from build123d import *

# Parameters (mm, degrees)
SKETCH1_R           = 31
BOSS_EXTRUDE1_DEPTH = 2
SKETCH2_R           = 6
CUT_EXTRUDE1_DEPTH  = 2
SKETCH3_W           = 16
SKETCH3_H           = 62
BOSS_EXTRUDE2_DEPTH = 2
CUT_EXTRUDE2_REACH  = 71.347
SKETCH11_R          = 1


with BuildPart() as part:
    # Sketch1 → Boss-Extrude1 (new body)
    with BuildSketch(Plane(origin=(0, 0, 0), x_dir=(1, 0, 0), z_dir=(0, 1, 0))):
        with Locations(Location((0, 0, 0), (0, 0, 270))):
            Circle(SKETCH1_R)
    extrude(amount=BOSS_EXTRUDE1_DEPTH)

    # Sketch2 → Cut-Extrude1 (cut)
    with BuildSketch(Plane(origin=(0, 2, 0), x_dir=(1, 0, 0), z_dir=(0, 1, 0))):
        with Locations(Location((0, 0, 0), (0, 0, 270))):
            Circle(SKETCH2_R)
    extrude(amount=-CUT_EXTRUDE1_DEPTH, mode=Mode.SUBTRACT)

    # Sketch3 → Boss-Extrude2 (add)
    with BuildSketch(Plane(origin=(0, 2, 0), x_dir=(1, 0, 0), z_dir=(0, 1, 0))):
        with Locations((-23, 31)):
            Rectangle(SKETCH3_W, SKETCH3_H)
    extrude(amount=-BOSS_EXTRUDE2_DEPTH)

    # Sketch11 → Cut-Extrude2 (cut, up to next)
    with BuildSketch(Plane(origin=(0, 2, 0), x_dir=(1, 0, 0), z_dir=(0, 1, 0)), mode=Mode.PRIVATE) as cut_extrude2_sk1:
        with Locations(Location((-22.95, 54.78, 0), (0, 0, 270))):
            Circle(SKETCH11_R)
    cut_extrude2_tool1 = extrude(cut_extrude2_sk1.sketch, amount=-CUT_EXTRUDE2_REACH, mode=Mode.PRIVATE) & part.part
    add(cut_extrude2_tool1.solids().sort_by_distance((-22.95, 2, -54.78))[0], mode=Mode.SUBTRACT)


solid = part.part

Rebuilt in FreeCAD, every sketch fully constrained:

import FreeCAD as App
import Part
import Sketcher

V = App.Vector

doc = App.newDocument("Part")
body = doc.addObject("PartDesign::Body", "Body")

sketch1 = body.newObject("Sketcher::SketchObject", "Sketch")
sketch1.AttachmentSupport = (doc.getObject("XZ_Plane"), [""])
sketch1.MapMode = "FlatFace"
sketch1.addGeometry(Part.Circle(V(0, 0, 0), V(0, 0, 1), 31), False)
sketch1.addConstraint(Sketcher.Constraint("Coincident", 0, 3, -1, 1))
sketch1.addConstraint(Sketcher.Constraint("Diameter", 0, 62.0))
pad1 = body.newObject("PartDesign::Pad", "Pad")
pad1.Profile = sketch1
pad1.Length = 2
pad1.Reversed = True

sketch2 = body.newObject("Sketcher::SketchObject", "Sketch001")
sketch2.AttachmentSupport = (doc.getObject("XZ_Plane"), [""])
sketch2.MapMode = "FlatFace"
sketch2.AttachmentOffset = App.Placement(V(0, 0, -2), App.Rotation())
sketch2.addGeometry(Part.Circle(V(0, 0, 0), V(0, 0, 1), 6), False)
sketch2.addConstraint(Sketcher.Constraint("Coincident", 0, 3, -1, 1))
sketch2.addConstraint(Sketcher.Constraint("Diameter", 0, 12.0))
pocket1 = body.newObject("PartDesign::Pocket", "Pocket")
pocket1.Profile = sketch2
pocket1.Length = 2
pocket1.Reversed = True

sketch3 = body.newObject("Sketcher::SketchObject", "Sketch002")
sketch3.AttachmentSupport = (doc.getObject("XZ_Plane"), [""])
sketch3.MapMode = "FlatFace"
sketch3.AttachmentOffset = App.Placement(V(0, 0, -2), App.Rotation())
sketch3.addGeometry(Part.LineSegment(V(-31, -62, 0), V(-31, 0, 0)), False)
sketch3.addGeometry(Part.LineSegment(V(-31, 0, 0), V(-15, 0, 0)), False)
sketch3.addGeometry(Part.LineSegment(V(-15, 0, 0), V(-15, -62, 0)), False)
sketch3.addGeometry(Part.LineSegment(V(-15, -62, 0), V(-31, -62, 0)), False)
sketch3.addConstraint(Sketcher.Constraint("Coincident", 0, 2, 1, 1))
sketch3.addConstraint(Sketcher.Constraint("Coincident", 1, 2, 2, 1))
sketch3.addConstraint(Sketcher.Constraint("Coincident", 2, 2, 3, 1))
sketch3.addConstraint(Sketcher.Constraint("Coincident", 3, 2, 0, 1))
sketch3.addConstraint(Sketcher.Constraint("Vertical", 0))
sketch3.addConstraint(Sketcher.Constraint("Horizontal", 1))
sketch3.addConstraint(Sketcher.Constraint("Vertical", 2))
sketch3.addConstraint(Sketcher.Constraint("Horizontal", 3))
sketch3.addConstraint(Sketcher.Constraint("PointOnObject", 0, 2, -1))
sketch3.addConstraint(Sketcher.Constraint("DistanceX", 1, 1, 1, 2, 16.0))
sketch3.addConstraint(Sketcher.Constraint("DistanceY", 0, 1, 0, 2, 62.0))
sketch3.addConstraint(Sketcher.Constraint("DistanceX", 0, 2, -1, 1, 31.0))
pad2 = body.newObject("PartDesign::Pad", "Pad001")
pad2.Profile = sketch3
pad2.Length = 2

sketch4 = body.newObject("Sketcher::SketchObject", "Sketch003")
sketch4.AttachmentSupport = (doc.getObject("XZ_Plane"), [""])
sketch4.MapMode = "FlatFace"
sketch4.AttachmentOffset = App.Placement(V(0, 0, -2), App.Rotation())
sketch4.addGeometry(Part.Circle(V(-22.9, -54.8, 0), V(0, 0, 1), 1), False)
sketch4.addConstraint(Sketcher.Constraint("Diameter", 0, 2.0))
sketch4.addConstraint(Sketcher.Constraint("DistanceX", 0, 3, -1, 1, 22.95))
sketch4.addConstraint(Sketcher.Constraint("DistanceY", 0, 3, -1, 1, 54.78))
pocket2 = body.newObject("PartDesign::Pocket", "Pocket001")
pocket2.Profile = sketch4
pocket2.Type = "UpToFirst"
pocket2.Reversed = True

doc.recompute()
